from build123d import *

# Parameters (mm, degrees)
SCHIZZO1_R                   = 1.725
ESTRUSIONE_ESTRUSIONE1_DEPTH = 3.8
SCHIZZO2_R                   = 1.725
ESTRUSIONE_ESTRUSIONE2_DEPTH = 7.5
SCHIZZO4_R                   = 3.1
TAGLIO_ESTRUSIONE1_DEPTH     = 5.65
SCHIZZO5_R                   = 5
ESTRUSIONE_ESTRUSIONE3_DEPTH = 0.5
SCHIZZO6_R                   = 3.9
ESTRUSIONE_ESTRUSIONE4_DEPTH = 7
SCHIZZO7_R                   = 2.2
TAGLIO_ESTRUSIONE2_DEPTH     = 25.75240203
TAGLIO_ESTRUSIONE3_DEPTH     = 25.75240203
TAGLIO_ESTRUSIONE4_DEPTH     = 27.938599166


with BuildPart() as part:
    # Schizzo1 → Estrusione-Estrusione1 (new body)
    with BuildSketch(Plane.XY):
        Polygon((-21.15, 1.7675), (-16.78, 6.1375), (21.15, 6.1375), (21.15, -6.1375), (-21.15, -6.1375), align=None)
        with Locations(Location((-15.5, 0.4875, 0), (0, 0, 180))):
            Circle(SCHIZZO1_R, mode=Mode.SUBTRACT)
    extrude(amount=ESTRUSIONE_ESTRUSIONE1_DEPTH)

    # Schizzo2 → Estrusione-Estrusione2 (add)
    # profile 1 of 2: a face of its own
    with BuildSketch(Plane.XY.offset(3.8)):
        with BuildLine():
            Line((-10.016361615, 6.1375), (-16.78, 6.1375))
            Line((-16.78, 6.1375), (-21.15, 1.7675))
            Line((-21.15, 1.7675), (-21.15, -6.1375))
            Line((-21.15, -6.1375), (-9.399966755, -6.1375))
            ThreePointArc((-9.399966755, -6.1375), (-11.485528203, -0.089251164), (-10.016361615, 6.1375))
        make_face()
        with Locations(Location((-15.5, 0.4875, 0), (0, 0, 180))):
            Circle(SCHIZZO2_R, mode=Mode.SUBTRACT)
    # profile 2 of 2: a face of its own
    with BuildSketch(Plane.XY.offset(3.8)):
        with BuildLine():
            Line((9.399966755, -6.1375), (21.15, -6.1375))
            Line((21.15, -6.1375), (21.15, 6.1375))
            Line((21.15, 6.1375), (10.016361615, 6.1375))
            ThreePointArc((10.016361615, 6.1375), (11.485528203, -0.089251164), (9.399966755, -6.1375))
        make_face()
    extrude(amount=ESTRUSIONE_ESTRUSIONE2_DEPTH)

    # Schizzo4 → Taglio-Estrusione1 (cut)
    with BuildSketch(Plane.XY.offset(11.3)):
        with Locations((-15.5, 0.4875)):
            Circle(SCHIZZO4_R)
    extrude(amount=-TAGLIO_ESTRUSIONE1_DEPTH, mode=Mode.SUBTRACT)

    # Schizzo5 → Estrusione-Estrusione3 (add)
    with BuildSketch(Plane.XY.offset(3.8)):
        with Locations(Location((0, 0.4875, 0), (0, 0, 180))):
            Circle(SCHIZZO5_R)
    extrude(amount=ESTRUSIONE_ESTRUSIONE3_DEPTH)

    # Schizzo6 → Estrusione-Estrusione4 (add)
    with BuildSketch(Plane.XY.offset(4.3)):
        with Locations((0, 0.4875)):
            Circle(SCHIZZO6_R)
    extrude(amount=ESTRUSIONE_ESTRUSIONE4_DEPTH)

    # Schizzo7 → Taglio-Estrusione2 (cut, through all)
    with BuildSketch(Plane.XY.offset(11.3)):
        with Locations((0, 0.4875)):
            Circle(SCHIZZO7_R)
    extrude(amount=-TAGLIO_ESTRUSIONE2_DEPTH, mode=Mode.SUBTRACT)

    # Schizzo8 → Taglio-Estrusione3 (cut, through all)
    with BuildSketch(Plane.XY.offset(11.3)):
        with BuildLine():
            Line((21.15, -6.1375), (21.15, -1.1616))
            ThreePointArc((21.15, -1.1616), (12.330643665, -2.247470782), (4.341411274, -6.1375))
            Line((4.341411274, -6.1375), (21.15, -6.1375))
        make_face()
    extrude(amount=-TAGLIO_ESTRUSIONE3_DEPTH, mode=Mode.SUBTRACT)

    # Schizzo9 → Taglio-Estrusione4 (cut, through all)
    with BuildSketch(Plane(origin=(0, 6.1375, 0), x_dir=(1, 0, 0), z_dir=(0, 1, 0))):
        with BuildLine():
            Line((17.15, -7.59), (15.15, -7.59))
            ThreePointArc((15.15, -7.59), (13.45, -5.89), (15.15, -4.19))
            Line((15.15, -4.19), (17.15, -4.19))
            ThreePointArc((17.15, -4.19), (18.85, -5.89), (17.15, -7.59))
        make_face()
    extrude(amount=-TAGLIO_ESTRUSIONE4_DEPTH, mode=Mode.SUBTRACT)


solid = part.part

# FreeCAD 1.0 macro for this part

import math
import FreeCAD as App
import Part
import Sketcher
from FreeCAD import Vector
Q = App.Units.Quantity


def add_polygon(sketch, points):
    """Adds a closed chain of lines whose ends are joined by coincident constraints."""
    first, n = sketch.GeometryCount, len(points)
    for a, b in zip(points, points[1:] + points[:1]):
        sketch.addGeometry(Part.LineSegment(App.Vector(*a, 0), App.Vector(*b, 0)), False)
    for i in range(n):
        sketch.addConstraint(Sketcher.Constraint("Coincident", first + i, 2, first + (i + 1) % n, 1))

doc = App.newDocument("Part")
body = doc.addObject("PartDesign::Body", "Body")

# Sketch on XY plane
sketch1 = body.newObject("Sketcher::SketchObject", "Sketch")
sketch1.AttachmentSupport = (doc.getObject("XY_Plane"), [""])
sketch1.MapMode = "FlatFace"
add_polygon(sketch1, [(-16.8, 6.1), (-21.1, 1.8), (-21.1, -6.1), (21.1, -6.1), (21.1, 6.1)])  # lines 0-4
sketch1.addGeometry(Part.Circle(Vector(-15.5, 0.5, 0), Vector(0, 0, 1), 1.7), False)  # 5
sketch1.addConstraint([
    Sketcher.Constraint("Vertical", 1),
    Sketcher.Constraint("Horizontal", 2),
    Sketcher.Constraint("Vertical", 3),
    Sketcher.Constraint("Horizontal", 4),
    Sketcher.Constraint("Symmetric", 1, 2, 3, 2, -1, 1),
    Sketcher.Constraint("Diameter", 5, Q("3.45 mm")),
    Sketcher.Constraint("Angle", 0, Q("-135 deg")),
    Sketcher.Constraint("DistanceX", 2, 1, 2, 2, Q("42.3 mm")),
    Sketcher.Constraint("DistanceX", 4, 2, 4, 1, Q("37.93 mm")),
    Sketcher.Constraint("DistanceX", 5, 3, -1, 1, Q("15.5 mm")),
    Sketcher.Constraint("DistanceY", 1, 2, 1, 1, Q("7.905 mm")),
    Sketcher.Constraint("DistanceY", 5, 3, 0, 2, Q("1.28 mm")),
])
pad1 = body.newObject("PartDesign::Pad", "Pad")
pad1.Profile = sketch1
pad1.Length = 3.8

# Sketch on XY plane
sketch2 = body.newObject("Sketcher::SketchObject", "Sketch001")
sketch2.AttachmentSupport = (doc.getObject("XY_Plane"), [""])
sketch2.MapMode = "FlatFace"
sketch2.AttachmentOffset = App.Placement(Vector(0, 0, 3.8), App.Rotation())
sketch2.addGeometry([
    Part.LineSegment(Vector(-10, 6.1, 0), Vector(-16.8, 6.1, 0)),  # 0
    Part.LineSegment(Vector(-16.8, 6.1, 0), Vector(-21.1, 1.8, 0)),  # 1
    Part.LineSegment(Vector(-21.1, 1.8, 0), Vector(-21.1, -6.1, 0)),  # 2
    Part.LineSegment(Vector(-21.1, -6.1, 0), Vector(-9.4, -6.1, 0)),  # 3
    Part.ArcOfCircle(Part.Circle(Vector(0, 0.5, 0), Vector(0, 0, 1), 11.5), math.radians(151), math.radians(215)),  # 4
    Part.Circle(Vector(-15.5, 0.5, 0), Vector(0, 0, 1), 1.7),  # 5
    Part.LineSegment(Vector(9.4, -6.1, 0), Vector(21.1, -6.1, 0)),  # 6
    Part.LineSegment(Vector(21.1, -6.1, 0), Vector(21.1, 6.1, 0)),  # 7
    Part.LineSegment(Vector(21.1, 6.1, 0), Vector(10, 6.1, 0)),  # 8
    Part.ArcOfCircle(Part.Circle(Vector(0, 0.5, 0), Vector(0, 0, 1), 11.5), math.radians(-35), math.radians(29)),  # 9
], False)
sketch2.addConstraint([
    Sketcher.Constraint("Coincident", 0, 2, 1, 1),
    Sketcher.Constraint("Coincident", 1, 2, 2, 1),
    Sketcher.Constraint("Coincident", 2, 2, 3, 1),
    Sketcher.Constraint("Coincident", 3, 2, 4, 2),
    Sketcher.Constraint("Coincident", 4, 1, 0, 1),
    Sketcher.Constraint("Coincident", 6, 2, 7, 1),
    Sketcher.Constraint("Coincident", 7, 2, 8, 1),
    Sketcher.Constraint("Coincident", 8, 2, 9, 2),
    Sketcher.Constraint("Coincident", 9, 1, 6, 1),
    Sketcher.Constraint("Horizontal", 0),
    Sketcher.Constraint("Vertical", 2),
    Sketcher.Constraint("Horizontal", 3),
    Sketcher.Constraint("Horizontal", 6),
    Sketcher.Constraint("Vertical", 7),
    Sketcher.Constraint("Horizontal", 8),
    Sketcher.Constraint("Coincident", 9, 3, 4, 3),
    Sketcher.Constraint("Equal", 4, 9),
    Sketcher.Constraint("Symmetric", 2, 2, 7, 2, -1, 1),
    Sketcher.Constraint("Symmetric", 4, 1, 8, 2, -2),
    Sketcher.Constraint("Horizontal", 4, 3, 5, 3),
    Sketcher.Constraint("Horizontal", 3, 2, 6, 2),
    Sketcher.Constraint("Radius", 4, Q("11.5 mm")),
    Sketcher.Constraint("Diameter", 5, Q("3.45 mm")),
    Sketcher.Constraint("Angle", 1, Q("-135 deg")),
    Sketcher.Constraint("DistanceX", 5, 3, -1, 1, Q("15.5 mm")),
    Sketcher.Constraint("DistanceY", 2, 2, 2, 1, Q("7.905 mm")),
    Sketcher.Constraint("DistanceY", 7, 1, 7, 2, Q("12.275 mm")),
    Sketcher.Constraint("DistanceX", 0, 2, -1, 1, Q("16.78 mm")),
    Sketcher.Constraint("DistanceY", 5, 3, 0, 2, Q("5.65 mm")),
])
pad2 = body.newObject("PartDesign::Pad", "Pad001")
pad2.Profile = sketch2
pad2.Length = 7.5

# Sketch on XY plane
sketch3 = body.newObject("Sketcher::SketchObject", "Sketch002")
sketch3.AttachmentSupport = (doc.getObject("XY_Plane"), [""])
sketch3.MapMode = "FlatFace"
sketch3.AttachmentOffset = App.Placement(Vector(0, 0, 11.3), App.Rotation())
sketch3.addGeometry(Part.Circle(Vector(-15.5, 0.5, 0), Vector(0, 0, 1), 3.1), False)
sketch3.addConstraint([
    Sketcher.Constraint("Diameter", 0, Q("6.2 mm")),
    Sketcher.Constraint("DistanceX", 0, 3, -1, 1, Q("15.5 mm")),
    Sketcher.Constraint("DistanceY", -1, 1, 0, 3, Q("0.4875 mm")),
])
pocket1 = body.newObject("PartDesign::Pocket", "Pocket")
pocket1.Profile = sketch3
pocket1.Length = 5.65

# Sketch on XY plane
sketch4 = body.newObject("Sketcher::SketchObject", "Sketch003")
sketch4.AttachmentSupport = (doc.getObject("XY_Plane"), [""])
sketch4.MapMode = "FlatFace"
sketch4.AttachmentOffset = App.Placement(Vector(0, 0, 3.8), App.Rotation())
sketch4.addGeometry(Part.Circle(Vector(0, 0, 0), Vector(0, 0, 1), 5), False)
sketch4.addConstraint([
    Sketcher.Constraint("PointOnObject", 0, 3, -2),
    Sketcher.Constraint("Diameter", 0, Q("10 mm")),
    Sketcher.Constraint("DistanceY", -1, 1, 0, 3, Q("0.4875 mm")),
])
pad3 = body.newObject("PartDesign::Pad", "Pad002")
pad3.Profile = sketch4
pad3.Length = 0.5

# Sketch on XY plane
sketch5 = body.newObject("Sketcher::SketchObject", "Sketch004")
sketch5.AttachmentSupport = (doc.getObject("XY_Plane"), [""])
sketch5.MapMode = "FlatFace"
sketch5.AttachmentOffset = App.Placement(Vector(0, 0, 4.3), App.Rotation())
sketch5.addGeometry(Part.Circle(Vector(0, 0.5, 0), Vector(0, 0, 1), 3.9), False)
sketch5.addConstraint([
    Sketcher.Constraint("PointOnObject", 0, 3, -2),
    Sketcher.Constraint("Diameter", 0, Q("7.8 mm")),
    Sketcher.Constraint("DistanceY", -1, 1, 0, 3, Q("0.4875 mm")),
])
pad4 = body.newObject("PartDesign::Pad", "Pad003")
pad4.Profile = sketch5
pad4.Length = 7

# Sketch on XY plane
sketch6 = body.newObject("Sketcher::SketchObject", "Sketch005")
sketch6.AttachmentSupport = (doc.getObject("XY_Plane"), [""])
sketch6.MapMode = "FlatFace"
sketch6.AttachmentOffset = App.Placement(Vector(0, 0, 11.3), App.Rotation())
sketch6.addGeometry(Part.Circle(Vector(0, 0.5, 0), Vector(0, 0, 1), 2.2), False)
sketch6.addConstraint([
    Sketcher.Constraint("PointOnObject", 0, 3, -2),
    Sketcher.Constraint("Diameter", 0, Q("4.4 mm")),
    Sketcher.Constraint("DistanceY", -1, 1, 0, 3, Q("0.4875 mm")),
])
pocket2 = body.newObject("PartDesign::Pocket", "Pocket001")
pocket2.Profile = sketch6
pocket2.Type = "ThroughAll"

# Sketch on XY plane
sketch7 = body.newObject("Sketcher::SketchObject", "Sketch006")
sketch7.AttachmentSupport = (doc.getObject("XY_Plane"), [""])
sketch7.MapMode = "FlatFace"
sketch7.AttachmentOffset = App.Placement(Vector(0, 0, 11.3), App.Rotation())
sketch7.addGeometry([
    Part.LineSegment(Vector(21.1, -6.1, 0), Vector(21.1, -1.2, 0)),
    Part.ArcOfCircle(Part.Circle(Vector(20, -28.1, 0), Vector(0, 0, 1), 27), math.radians(88), math.radians(125)),
    Part.LineSegment(Vector(4.3, -6.1, 0), Vector(21.1, -6.1, 0)),
], False)
sketch7.addConstraint([
    Sketcher.Constraint("Coincident", 0, 2, 1, 1),
    Sketcher.Constraint("Coincident", 1, 2, 2, 1),
    Sketcher.Constraint("Coincident", 2, 2, 0, 1),
    Sketcher.Constraint("Vertical", 0),
    Sketcher.Constraint("Horizontal", 2),
    Sketcher.Constraint("Radius", 1, Q("27 mm")),
    Sketcher.Constraint("DistanceX", -1, 1, 0, 2, Q("21.15 mm")),
    Sketcher.Constraint("DistanceY", 0, 1, 0, 2, Q("4.9759 mm")),
    Sketcher.Constraint("DistanceX", 2, 1, 2, 2, Q("16.808589 mm")),
    Sketcher.Constraint("DistanceY", 0, 2, -1, 1, Q("1.1616 mm")),
])
pocket3 = body.newObject("PartDesign::Pocket", "Pocket002")
pocket3.Profile = sketch7
pocket3.Type = "ThroughAll"

# Sketch on XZ plane
sketch8 = body.newObject("Sketcher::SketchObject", "Sketch007")
sketch8.AttachmentSupport = (doc.getObject("XZ_Plane"), [""])
sketch8.MapMode = "FlatFace"
sketch8.AttachmentOffset = App.Placement(Vector(0, 0, -6.1375), App.Rotation())
sketch8.addGeometry([
    Part.LineSegment(Vector(15.2, 7.6, 0), Vector(17.1, 7.6, 0)),
    Part.ArcOfCircle(Part.Circle(Vector(17.1, 5.9, 0), Vector(0, 0, 1), 1.7), math.radians(-90), math.radians(90)),
    Part.LineSegment(Vector(17.1, 4.2, 0), Vector(15.2, 4.2, 0)),
    Part.ArcOfCircle(Part.Circle(Vector(15.2, 5.9, 0), Vector(0, 0, 1), 1.7), math.radians(90), math.radians(270)),
], False)
sketch8.addConstraint([
    Sketcher.Constraint("Tangent", 0, 2, 1, 2),
    Sketcher.Constraint("Tangent", 1, 1, 2, 1),
    Sketcher.Constraint("Tangent", 2, 2, 3, 2),
    Sketcher.Constraint("Tangent", 3, 1, 0, 1),
    Sketcher.Constraint("Horizontal", 0),
    Sketcher.Constraint("Horizontal", 2),
    Sketcher.Constraint("Radius", 1, Q("1.7 mm")),
    Sketcher.Constraint("DistanceX", 0, 1, 0, 2, Q("2 mm")),
    Sketcher.Constraint("DistanceX", -1, 1, 1, 3, Q("17.15 mm")),
    Sketcher.Constraint("DistanceY", -1, 1, 1, 3, Q("5.89 mm")),
])
pocket4 = body.newObject("PartDesign::Pocket", "Pocket003")
pocket4.Profile = sketch8
pocket4.Type = "ThroughAll"
pocket4.Reversed = True

doc.recompute()
